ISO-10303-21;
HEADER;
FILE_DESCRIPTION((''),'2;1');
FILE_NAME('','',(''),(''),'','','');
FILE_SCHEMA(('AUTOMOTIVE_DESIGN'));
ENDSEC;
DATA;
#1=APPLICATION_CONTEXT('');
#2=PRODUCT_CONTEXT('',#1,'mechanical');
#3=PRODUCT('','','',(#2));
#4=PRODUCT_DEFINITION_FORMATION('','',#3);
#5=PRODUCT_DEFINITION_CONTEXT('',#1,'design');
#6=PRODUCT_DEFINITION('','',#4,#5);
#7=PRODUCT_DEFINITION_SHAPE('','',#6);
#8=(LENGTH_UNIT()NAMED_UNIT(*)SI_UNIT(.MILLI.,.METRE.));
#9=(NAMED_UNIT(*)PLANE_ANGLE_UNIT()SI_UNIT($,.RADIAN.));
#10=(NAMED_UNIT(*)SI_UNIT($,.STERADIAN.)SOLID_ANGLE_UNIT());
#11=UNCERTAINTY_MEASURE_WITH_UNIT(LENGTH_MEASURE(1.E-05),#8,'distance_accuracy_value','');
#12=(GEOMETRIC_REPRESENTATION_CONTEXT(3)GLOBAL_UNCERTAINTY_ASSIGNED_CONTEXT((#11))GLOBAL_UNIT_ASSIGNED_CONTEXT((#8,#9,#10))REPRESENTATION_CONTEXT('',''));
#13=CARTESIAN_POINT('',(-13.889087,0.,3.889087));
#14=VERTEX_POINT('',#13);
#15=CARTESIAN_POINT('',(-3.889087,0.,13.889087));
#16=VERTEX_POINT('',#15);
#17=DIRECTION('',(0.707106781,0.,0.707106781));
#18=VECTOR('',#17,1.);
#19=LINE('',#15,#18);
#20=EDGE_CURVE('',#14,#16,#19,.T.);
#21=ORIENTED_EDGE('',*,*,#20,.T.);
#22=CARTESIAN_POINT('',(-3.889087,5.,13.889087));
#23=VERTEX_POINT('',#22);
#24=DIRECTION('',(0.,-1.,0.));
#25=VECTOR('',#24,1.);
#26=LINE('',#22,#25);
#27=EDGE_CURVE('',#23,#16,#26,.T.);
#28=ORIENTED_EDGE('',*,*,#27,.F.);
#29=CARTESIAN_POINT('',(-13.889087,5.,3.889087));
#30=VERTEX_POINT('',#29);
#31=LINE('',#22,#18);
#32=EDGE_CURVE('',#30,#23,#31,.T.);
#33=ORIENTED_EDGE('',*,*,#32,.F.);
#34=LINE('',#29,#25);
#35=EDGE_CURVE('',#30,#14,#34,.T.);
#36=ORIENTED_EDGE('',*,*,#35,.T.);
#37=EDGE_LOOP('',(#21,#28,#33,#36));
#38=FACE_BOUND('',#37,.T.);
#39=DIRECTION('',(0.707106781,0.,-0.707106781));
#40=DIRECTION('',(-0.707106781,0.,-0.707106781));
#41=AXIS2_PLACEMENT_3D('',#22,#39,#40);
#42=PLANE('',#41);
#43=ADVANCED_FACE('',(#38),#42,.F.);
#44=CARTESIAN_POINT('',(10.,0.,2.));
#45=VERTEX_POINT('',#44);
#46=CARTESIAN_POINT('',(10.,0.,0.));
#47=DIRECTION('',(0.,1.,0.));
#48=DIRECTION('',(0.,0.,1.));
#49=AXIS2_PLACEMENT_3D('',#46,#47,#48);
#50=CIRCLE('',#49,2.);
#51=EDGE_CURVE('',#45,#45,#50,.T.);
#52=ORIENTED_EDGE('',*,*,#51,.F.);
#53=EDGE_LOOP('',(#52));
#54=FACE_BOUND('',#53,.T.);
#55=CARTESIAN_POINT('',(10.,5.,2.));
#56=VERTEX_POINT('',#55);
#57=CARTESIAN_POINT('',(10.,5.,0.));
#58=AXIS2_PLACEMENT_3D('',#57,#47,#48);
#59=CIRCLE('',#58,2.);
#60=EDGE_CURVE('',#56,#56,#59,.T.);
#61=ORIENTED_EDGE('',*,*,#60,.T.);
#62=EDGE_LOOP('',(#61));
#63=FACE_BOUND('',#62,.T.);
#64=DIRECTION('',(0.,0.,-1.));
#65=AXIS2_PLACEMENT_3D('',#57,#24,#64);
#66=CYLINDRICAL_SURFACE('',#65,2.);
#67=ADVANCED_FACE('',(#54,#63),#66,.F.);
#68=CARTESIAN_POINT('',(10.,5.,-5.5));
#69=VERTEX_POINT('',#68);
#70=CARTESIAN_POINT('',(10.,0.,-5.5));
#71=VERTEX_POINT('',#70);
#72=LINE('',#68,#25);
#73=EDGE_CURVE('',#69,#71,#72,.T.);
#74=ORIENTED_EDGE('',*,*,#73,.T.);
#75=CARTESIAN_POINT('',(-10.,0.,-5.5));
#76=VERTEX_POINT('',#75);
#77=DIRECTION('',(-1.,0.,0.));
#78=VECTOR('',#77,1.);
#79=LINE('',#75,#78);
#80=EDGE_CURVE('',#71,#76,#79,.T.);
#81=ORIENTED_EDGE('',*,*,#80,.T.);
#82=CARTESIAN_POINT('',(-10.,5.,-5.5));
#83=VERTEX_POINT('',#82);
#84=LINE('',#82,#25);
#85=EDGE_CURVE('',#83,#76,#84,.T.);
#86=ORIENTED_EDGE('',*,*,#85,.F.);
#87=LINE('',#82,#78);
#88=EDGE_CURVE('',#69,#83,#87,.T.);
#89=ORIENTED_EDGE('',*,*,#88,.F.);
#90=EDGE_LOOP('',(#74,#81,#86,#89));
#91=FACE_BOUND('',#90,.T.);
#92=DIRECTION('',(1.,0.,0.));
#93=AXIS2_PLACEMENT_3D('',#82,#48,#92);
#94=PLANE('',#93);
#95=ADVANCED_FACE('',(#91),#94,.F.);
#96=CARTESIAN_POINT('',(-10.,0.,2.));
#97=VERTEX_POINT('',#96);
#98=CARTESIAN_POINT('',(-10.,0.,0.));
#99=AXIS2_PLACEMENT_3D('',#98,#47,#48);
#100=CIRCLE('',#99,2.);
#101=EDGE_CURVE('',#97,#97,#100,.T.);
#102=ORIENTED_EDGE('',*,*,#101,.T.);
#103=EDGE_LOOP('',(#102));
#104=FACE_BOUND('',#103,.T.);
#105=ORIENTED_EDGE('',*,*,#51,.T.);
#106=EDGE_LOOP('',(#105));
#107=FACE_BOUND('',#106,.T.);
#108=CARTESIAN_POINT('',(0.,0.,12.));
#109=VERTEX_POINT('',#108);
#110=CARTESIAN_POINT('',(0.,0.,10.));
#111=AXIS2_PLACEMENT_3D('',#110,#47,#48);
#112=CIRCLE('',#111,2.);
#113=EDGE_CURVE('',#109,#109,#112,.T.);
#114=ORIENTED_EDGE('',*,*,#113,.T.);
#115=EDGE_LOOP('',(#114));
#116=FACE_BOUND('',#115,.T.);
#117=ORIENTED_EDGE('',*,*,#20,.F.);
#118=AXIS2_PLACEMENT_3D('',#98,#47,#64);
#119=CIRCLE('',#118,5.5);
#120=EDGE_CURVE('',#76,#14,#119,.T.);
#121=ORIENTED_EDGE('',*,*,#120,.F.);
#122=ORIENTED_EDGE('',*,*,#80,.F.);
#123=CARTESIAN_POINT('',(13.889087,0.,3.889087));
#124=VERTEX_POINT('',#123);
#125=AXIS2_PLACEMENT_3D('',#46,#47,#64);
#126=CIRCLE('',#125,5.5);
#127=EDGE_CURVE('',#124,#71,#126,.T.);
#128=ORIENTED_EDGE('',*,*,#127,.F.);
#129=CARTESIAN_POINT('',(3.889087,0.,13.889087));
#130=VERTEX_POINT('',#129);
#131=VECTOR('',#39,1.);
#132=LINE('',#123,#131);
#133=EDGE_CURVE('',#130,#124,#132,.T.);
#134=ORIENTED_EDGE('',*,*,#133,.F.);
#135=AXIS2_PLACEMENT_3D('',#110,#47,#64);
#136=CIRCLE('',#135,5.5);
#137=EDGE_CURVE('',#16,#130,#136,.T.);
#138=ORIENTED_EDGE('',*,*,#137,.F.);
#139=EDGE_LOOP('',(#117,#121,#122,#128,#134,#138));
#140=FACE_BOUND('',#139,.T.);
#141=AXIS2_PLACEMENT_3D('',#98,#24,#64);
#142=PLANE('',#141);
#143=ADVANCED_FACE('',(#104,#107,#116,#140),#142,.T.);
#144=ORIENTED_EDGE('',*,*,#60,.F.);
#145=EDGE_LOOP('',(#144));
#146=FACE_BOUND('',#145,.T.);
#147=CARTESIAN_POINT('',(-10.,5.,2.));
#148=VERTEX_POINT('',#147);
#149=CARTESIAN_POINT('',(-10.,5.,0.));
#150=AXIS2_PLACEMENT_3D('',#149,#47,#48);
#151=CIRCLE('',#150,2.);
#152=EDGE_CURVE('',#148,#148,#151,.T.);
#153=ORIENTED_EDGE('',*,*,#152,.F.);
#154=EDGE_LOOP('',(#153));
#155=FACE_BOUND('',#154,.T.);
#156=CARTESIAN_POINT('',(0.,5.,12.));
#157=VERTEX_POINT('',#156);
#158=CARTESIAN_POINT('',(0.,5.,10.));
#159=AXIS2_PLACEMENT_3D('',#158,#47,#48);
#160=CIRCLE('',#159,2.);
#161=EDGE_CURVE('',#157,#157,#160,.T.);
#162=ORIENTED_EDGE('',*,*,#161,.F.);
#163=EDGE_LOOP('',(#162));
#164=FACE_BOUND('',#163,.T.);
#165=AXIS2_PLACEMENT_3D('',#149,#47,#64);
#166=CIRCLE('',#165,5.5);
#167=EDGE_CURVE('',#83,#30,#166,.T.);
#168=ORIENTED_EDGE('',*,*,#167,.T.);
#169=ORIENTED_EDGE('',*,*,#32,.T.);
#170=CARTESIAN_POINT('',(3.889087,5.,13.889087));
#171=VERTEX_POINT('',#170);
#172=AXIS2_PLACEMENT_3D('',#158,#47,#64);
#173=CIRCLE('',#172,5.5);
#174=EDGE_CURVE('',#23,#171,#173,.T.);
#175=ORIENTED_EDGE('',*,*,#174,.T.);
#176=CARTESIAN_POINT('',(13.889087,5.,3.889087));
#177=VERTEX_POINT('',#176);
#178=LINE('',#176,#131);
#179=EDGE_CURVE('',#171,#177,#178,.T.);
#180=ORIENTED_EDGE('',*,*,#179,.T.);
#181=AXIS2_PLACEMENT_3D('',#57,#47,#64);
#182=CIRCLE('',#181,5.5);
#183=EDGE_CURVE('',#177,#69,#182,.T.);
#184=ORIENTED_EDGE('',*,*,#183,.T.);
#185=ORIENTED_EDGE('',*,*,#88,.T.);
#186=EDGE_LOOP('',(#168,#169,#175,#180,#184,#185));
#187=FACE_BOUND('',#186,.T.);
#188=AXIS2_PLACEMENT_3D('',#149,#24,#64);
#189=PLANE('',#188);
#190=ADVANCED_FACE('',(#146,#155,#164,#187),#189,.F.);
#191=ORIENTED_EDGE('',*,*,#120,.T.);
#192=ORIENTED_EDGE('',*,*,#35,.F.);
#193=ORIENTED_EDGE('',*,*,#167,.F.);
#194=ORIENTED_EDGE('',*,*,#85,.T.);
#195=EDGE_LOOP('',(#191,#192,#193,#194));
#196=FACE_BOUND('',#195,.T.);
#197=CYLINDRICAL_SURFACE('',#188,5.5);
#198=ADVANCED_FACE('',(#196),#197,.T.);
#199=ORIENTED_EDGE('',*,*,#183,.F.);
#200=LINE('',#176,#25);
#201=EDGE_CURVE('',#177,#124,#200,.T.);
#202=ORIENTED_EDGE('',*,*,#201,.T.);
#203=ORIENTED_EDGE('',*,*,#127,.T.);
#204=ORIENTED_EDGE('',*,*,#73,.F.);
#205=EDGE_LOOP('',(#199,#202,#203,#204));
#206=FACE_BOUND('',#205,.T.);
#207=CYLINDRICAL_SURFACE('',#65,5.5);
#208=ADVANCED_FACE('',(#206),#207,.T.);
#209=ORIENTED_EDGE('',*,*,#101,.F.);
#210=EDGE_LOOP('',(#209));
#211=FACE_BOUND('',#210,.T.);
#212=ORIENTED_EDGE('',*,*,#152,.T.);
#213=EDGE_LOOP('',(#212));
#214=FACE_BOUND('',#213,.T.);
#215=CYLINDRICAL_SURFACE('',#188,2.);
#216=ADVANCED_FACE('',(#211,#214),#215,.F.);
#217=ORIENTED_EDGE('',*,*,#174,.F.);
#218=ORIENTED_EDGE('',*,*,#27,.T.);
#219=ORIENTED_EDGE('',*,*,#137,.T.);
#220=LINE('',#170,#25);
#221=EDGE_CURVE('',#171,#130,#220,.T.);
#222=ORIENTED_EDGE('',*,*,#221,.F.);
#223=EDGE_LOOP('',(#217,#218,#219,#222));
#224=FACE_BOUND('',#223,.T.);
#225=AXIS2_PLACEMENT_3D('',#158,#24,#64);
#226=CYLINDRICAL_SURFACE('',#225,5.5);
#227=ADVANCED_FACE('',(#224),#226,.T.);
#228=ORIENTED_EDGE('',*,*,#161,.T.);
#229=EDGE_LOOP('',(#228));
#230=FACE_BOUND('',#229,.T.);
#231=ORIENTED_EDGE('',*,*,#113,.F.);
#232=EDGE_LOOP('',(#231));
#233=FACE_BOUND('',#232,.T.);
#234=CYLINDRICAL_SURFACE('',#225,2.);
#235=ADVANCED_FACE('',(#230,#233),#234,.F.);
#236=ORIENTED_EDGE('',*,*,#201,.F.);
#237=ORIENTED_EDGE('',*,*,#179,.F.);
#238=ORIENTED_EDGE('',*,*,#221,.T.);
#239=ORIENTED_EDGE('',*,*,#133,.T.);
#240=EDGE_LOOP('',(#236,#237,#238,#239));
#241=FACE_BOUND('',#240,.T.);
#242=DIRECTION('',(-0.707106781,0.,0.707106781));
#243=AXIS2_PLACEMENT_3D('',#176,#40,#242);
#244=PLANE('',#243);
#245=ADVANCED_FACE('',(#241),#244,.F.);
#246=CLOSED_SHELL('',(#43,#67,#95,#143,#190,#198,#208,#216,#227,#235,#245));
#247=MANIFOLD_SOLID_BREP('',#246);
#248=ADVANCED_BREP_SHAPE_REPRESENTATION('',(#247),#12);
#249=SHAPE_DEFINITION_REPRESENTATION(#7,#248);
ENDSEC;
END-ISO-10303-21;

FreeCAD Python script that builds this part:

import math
import FreeCAD as App
import Part
import Sketcher

V = App.Vector
Q = App.Units.Quantity

doc = App.newDocument("Part")
body = doc.addObject("PartDesign::Body", "Body")

sketch1 = body.newObject("Sketcher::SketchObject", "Sketch")
sketch1.AttachmentSupport = (doc.getObject("XZ_Plane"), [""])
sketch1.MapMode = "FlatFace"
sketch1.addGeometry([
    Part.LineSegment(V(10, -5.5, 0), V(-10, -5.5, 0)),
    Part.ArcOfCircle(Part.Circle(V(-10, 0, 0), V(0, 0, 1), 5.5), math.radians(135), math.radians(270)),
    Part.LineSegment(V(-13.889087, 3.889087, 0), V(-3.889087, 13.889087, 0)),
    Part.ArcOfCircle(Part.Circle(V(0, 10, 0), V(0, 0, 1), 5.5), math.radians(45), math.radians(135)),
    Part.LineSegment(V(3.889087, 13.889087, 0), V(13.889087, 3.889087, 0)),
    Part.ArcOfCircle(Part.Circle(V(10, 0, 0), V(0, 0, 1), 5.5), math.radians(-90), math.radians(45)),
    Part.Circle(V(0, 10, 0), V(0, 0, 1), 2),
    Part.Circle(V(10, 0, 0), V(0, 0, 1), 2),
    Part.Circle(V(-10, 0, 0), V(0, 0, 1), 2),
], False)
sketch1.addConstraint([
    Sketcher.Constraint("Tangent", 0, 2, 1, 2),
    Sketcher.Constraint("Tangent", 1, 1, 2, 1),
    Sketcher.Constraint("Tangent", 2, 2, 3, 2),
    Sketcher.Constraint("Tangent", 3, 1, 4, 1),
    Sketcher.Constraint("Tangent", 4, 2, 5, 2),
    Sketcher.Constraint("Tangent", 5, 1, 0, 1),
    Sketcher.Constraint("Horizontal", 0),
    Sketcher.Constraint("Coincident", 6, 3, 3, 3),
    Sketcher.Constraint("Coincident", 7, 3, 5, 3),
    Sketcher.Constraint("Coincident", 8, 3, 1, 3),
    Sketcher.Constraint("Equal", 1, 3),
    Sketcher.Constraint("Equal", 3, 5),
    Sketcher.Constraint("Equal", 6, 7),
    Sketcher.Constraint("Equal", 7, 8),
    Sketcher.Constraint("Symmetric", 1, 3, 5, 3, -1, 1),
    Sketcher.Constraint("PointOnObject", 3, 3, -2),
    Sketcher.Constraint("Perpendicular", 2, 4),
    Sketcher.Constraint("Diameter", 6, Q("4 mm")),
    Sketcher.Constraint("Radius", 1, Q("5.5 mm")),
    Sketcher.Constraint("DistanceX", 0, 2, 0, 1, Q("20 mm")),
])
pad1 = body.newObject("PartDesign::Pad", "Pad")
pad1.Profile = sketch1
pad1.Length = 5
pad1.Reversed = True

doc.recompute()
